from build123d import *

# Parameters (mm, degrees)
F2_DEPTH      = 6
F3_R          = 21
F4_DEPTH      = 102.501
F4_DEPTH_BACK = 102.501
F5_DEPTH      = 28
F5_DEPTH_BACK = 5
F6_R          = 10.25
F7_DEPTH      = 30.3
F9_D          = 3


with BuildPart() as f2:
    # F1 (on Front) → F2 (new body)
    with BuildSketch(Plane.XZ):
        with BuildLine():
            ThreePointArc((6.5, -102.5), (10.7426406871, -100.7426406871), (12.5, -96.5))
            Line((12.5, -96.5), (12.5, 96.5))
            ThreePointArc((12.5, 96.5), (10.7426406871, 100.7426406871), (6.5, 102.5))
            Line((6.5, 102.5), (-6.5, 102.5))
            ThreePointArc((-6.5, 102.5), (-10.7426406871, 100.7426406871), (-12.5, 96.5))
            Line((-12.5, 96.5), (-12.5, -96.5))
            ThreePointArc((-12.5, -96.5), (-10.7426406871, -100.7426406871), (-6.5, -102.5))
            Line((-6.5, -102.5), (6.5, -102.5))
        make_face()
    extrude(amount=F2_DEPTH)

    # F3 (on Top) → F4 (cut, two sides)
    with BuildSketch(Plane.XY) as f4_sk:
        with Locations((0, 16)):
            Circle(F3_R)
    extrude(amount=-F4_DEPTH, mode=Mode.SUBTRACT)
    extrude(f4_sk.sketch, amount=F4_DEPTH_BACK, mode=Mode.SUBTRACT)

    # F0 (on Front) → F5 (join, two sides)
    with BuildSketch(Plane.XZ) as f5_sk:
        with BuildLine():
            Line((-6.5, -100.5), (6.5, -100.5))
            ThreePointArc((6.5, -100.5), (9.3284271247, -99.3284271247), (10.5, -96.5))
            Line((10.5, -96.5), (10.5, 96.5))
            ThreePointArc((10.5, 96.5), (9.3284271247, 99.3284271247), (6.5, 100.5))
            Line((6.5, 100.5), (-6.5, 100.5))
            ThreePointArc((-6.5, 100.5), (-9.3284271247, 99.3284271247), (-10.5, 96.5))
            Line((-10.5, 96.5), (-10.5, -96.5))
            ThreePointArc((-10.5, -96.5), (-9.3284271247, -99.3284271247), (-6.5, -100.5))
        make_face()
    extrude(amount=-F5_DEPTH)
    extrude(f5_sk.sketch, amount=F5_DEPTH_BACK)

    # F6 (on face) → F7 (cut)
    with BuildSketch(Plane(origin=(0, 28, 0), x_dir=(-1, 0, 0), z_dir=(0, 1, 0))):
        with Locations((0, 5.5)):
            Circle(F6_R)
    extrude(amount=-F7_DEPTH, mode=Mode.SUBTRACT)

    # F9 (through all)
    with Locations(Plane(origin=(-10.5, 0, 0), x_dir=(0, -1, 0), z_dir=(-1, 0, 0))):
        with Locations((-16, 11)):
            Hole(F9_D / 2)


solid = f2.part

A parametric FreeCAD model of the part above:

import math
import FreeCAD as App
import Part
import Sketcher
from FreeCAD import Vector
Q = App.Units.Quantity

doc = App.newDocument("Part")
body = doc.addObject("PartDesign::Body", "Body")

# Sketch on XZ plane
sketch1 = doc.addObject("Sketcher::SketchObject", "Sketch")
body.addObject(sketch1)
sketch1.AttachmentSupport = (doc.XZ_Plane, [""])
sketch1.MapMode = "FlatFace"
sketch1.addGeometry([
    Part.ArcOfCircle(Part.Circle(Vector(6.5, -96.5, 0), Vector(0, 0, 1), 6), math.radians(-90), math.radians(0)),  # 0
    Part.LineSegment(Vector(12.5, -96.5, 0), Vector(12.5, 96.5, 0)),  # 1
    Part.ArcOfCircle(Part.Circle(Vector(6.5, 96.5, 0), Vector(0, 0, 1), 6), math.radians(0), math.radians(90)),  # 2
    Part.LineSegment(Vector(6.5, 102.5, 0), Vector(-6.5, 102.5, 0)),  # 3
    Part.ArcOfCircle(Part.Circle(Vector(-6.5, 96.5, 0), Vector(0, 0, 1), 6), math.radians(90), math.radians(180)),  # 4
    Part.LineSegment(Vector(-12.5, 96.5, 0), Vector(-12.5, -96.5, 0)),  # 5
    Part.ArcOfCircle(Part.Circle(Vector(-6.5, -96.5, 0), Vector(0, 0, 1), 6), math.radians(180), math.radians(270)),  # 6
    Part.LineSegment(Vector(-6.5, -102.5, 0), Vector(6.5, -102.5, 0)),  # 7
], False)
sketch1.addConstraint([
    Sketcher.Constraint("Tangent", 0, 2, 1, 1),
    Sketcher.Constraint("Tangent", 1, 2, 2, 1),
    Sketcher.Constraint("Tangent", 2, 2, 3, 1),
    Sketcher.Constraint("Tangent", 3, 2, 4, 1),
    Sketcher.Constraint("Tangent", 4, 2, 5, 1),
    Sketcher.Constraint("Tangent", 5, 2, 6, 1),
    Sketcher.Constraint("Tangent", 6, 2, 7, 1),
    Sketcher.Constraint("Tangent", 7, 2, 0, 1),
    Sketcher.Constraint("Vertical", 1),
    Sketcher.Constraint("Horizontal", 3),
    Sketcher.Constraint("Vertical", 5),
    Sketcher.Constraint("Horizontal", 7),
    Sketcher.Constraint("Equal", 0, 2),
    Sketcher.Constraint("Equal", 2, 4),
    Sketcher.Constraint("Equal", 4, 6),
    Sketcher.Constraint("Symmetric", 0, 3, 4, 3, -1, 1),
    Sketcher.Constraint("Radius", 0, Q("6 mm")),
    Sketcher.Constraint("DistanceX", 3, 2, 3, 1, Q("13 mm")),
    Sketcher.Constraint("DistanceY", 1, 1, 1, 2, Q("193 mm")),
])
pad1 = doc.addObject("PartDesign::Pad", "Pad")
body.addObject(pad1)
pad1.Profile = sketch1
pad1.Length = 6

# Sketch on XY plane
sketch2 = doc.addObject("Sketcher::SketchObject", "Sketch001")
body.addObject(sketch2)
sketch2.AttachmentSupport = (doc.XY_Plane, [""])
sketch2.MapMode = "FlatFace"
sketch2.addGeometry(Part.Circle(Vector(0, 16, 0), Vector(0, 0, 1), 21), False)
sketch2.addConstraint([
    Sketcher.Constraint("PointOnObject", 0, 3, -2),
    Sketcher.Constraint("Diameter", 0, Q("42 mm")),
    Sketcher.Constraint("DistanceY", -1, 1, 0, 3, Q("16 mm")),
])
pocket1 = doc.addObject("PartDesign::Pocket", "Pocket")
body.addObject(pocket1)
pocket1.Profile = sketch2
pocket1.Type = "ThroughAll"
pocket1.Midplane = True

# Sketch on XZ plane
sketch3 = doc.addObject("Sketcher::SketchObject", "Sketch002")
body.addObject(sketch3)
sketch3.AttachmentSupport = (doc.XZ_Plane, [""])
sketch3.MapMode = "FlatFace"
sketch3.addGeometry([
    Part.LineSegment(Vector(-6.5, -100.5, 0), Vector(6.5, -100.5, 0)),  # 0
    Part.ArcOfCircle(Part.Circle(Vector(6.5, -96.5, 0), Vector(0, 0, 1), 4), math.radians(-90), math.radians(0)),  # 1
    Part.LineSegment(Vector(10.5, -96.5, 0), Vector(10.5, 96.5, 0)),  # 2
    Part.ArcOfCircle(Part.Circle(Vector(6.5, 96.5, 0), Vector(0, 0, 1), 4), math.radians(0), math.radians(90)),  # 3
    Part.LineSegment(Vector(6.5, 100.5, 0), Vector(-6.5, 100.5, 0)),  # 4
    Part.ArcOfCircle(Part.Circle(Vector(-6.5, 96.5, 0), Vector(0, 0, 1), 4), math.radians(90), math.radians(180)),  # 5
    Part.LineSegment(Vector(-10.5, 96.5, 0), Vector(-10.5, -96.5, 0)),  # 6
    Part.ArcOfCircle(Part.Circle(Vector(-6.5, -96.5, 0), Vector(0, 0, 1), 4), math.radians(180), math.radians(270)),  # 7
], False)
sketch3.addConstraint([
    Sketcher.Constraint("Tangent", 0, 2, 1, 1),
    Sketcher.Constraint("Tangent", 1, 2, 2, 1),
    Sketcher.Constraint("Tangent", 2, 2, 3, 1),
    Sketcher.Constraint("Tangent", 3, 2, 4, 1),
    Sketcher.Constraint("Tangent", 4, 2, 5, 1),
    Sketcher.Constraint("Tangent", 5, 2, 6, 1),
    Sketcher.Constraint("Tangent", 6, 2, 7, 1),
    Sketcher.Constraint("Tangent", 7, 2, 0, 1),
    Sketcher.Constraint("Horizontal", 0),
    Sketcher.Constraint("Vertical", 2),
    Sketcher.Constraint("Horizontal", 4),
    Sketcher.Constraint("Vertical", 6),
    Sketcher.Constraint("Equal", 1, 3),
    Sketcher.Constraint("Equal", 3, 5),
    Sketcher.Constraint("Equal", 5, 7),
    Sketcher.Constraint("Symmetric", 1, 3, 5, 3, -1, 1),
    Sketcher.Constraint("Radius", 1, Q("4 mm")),
    Sketcher.Constraint("DistanceX", 0, 1, 0, 2, Q("13 mm")),
    Sketcher.Constraint("DistanceY", 2, 1, 2, 2, Q("193 mm")),
])
pad2 = doc.addObject("PartDesign::Pad", "Pad001")
body.addObject(pad2)
pad2.Profile = sketch3
pad2.Type = "TwoLengths"
pad2.Length = 28
pad2.Length2 = 5
pad2.Reversed = True

# Sketch on XZ plane
sketch4 = doc.addObject("Sketcher::SketchObject", "Sketch003")
body.addObject(sketch4)
sketch4.AttachmentSupport = (doc.XZ_Plane, [""])
sketch4.MapMode = "FlatFace"
sketch4.AttachmentOffset = App.Placement(Vector(0, 0, -28), App.Rotation())
sketch4.addGeometry(Part.Circle(Vector(0, 5.5, 0), Vector(0, 0, 1), 10.25), False)
sketch4.addConstraint([
    Sketcher.Constraint("PointOnObject", 0, 3, -2),
    Sketcher.Constraint("Diameter", 0, Q("20.5 mm")),
    Sketcher.Constraint("DistanceY", -1, 1, 0, 3, Q("5.5 mm")),
])
pocket2 = doc.addObject("PartDesign::Pocket", "Pocket001")
body.addObject(pocket2)
pocket2.Profile = sketch4
pocket2.Length = 30.3
pocket2.Reversed = True

# Sketch on YZ plane
sketch5 = doc.addObject("Sketcher::SketchObject", "Sketch004")
body.addObject(sketch5)
sketch5.AttachmentSupport = (doc.YZ_Plane, [""])
sketch5.MapMode = "FlatFace"
sketch5.AttachmentOffset = App.Placement(Vector(0, 0, -10.5), App.Rotation())
sketch5.addGeometry(Part.Circle(Vector(16, 11, 0), Vector(0, 0, 1), 1.5), False)
sketch5.addConstraint([
    Sketcher.Constraint("Diameter", 0, Q("3 mm")),
    Sketcher.Constraint("DistanceX", -1, 1, 0, 3, Q("16 mm")),
    Sketcher.Constraint("DistanceY", -1, 1, 0, 3, Q("11 mm")),
])
doc.recompute()
hole = doc.addObject("PartDesign::Hole", "Hole")
body.addObject(hole)
hole.Profile = sketch5
hole.ThreadType = "None"
hole.Diameter = 3
hole.DepthType = "ThroughAll"
hole.Reversed = True

doc.recompute()
